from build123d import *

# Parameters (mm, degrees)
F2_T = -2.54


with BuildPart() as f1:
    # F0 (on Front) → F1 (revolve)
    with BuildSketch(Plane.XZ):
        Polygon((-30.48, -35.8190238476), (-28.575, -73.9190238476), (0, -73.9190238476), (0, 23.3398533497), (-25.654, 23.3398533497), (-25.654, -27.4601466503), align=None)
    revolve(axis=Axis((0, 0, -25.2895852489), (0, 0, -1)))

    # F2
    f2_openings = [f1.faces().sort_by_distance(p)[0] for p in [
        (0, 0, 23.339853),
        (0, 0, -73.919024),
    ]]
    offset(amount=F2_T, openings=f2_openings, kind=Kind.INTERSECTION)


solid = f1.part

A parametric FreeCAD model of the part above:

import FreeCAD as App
import Part
import Sketcher
from FreeCAD import Vector
Q = App.Units.Quantity


def faces_at(feature, points):
    """Names of the faces that lie closest to the given points."""
    faces = feature.Shape.Faces
    near = lambda p: min(range(len(faces)), key=lambda i: faces[i].distToShape(Part.Vertex(*p))[0])
    return sorted({f"Face{near(p) + 1}" for p in points})


def add_polygon(sketch, points):
    """Adds a closed chain of lines whose ends are joined by coincident constraints."""
    first, n = sketch.GeometryCount, len(points)
    for a, b in zip(points, points[1:] + points[:1]):
        sketch.addGeometry(Part.LineSegment(App.Vector(*a, 0), App.Vector(*b, 0)), False)
    for i in range(n):
        sketch.addConstraint(Sketcher.Constraint("Coincident", first + i, 2, first + (i + 1) % n, 1))

doc = App.newDocument("Part")
body = doc.addObject("PartDesign::Body", "Body")

sketch1 = body.newObject("Sketcher::SketchObject", "Sketch")
sketch1.AttachmentSupport = (doc.getObject("XZ_Plane"), [""])
sketch1.MapMode = "FlatFace"
add_polygon(sketch1, [(-30, -36), (-29, -74), (0, -74), (0, 23), (-26, 23), (-26, -27)])
sketch1.addConstraint(Sketcher.Constraint("Horizontal", 1))
sketch1.addConstraint(Sketcher.Constraint("Vertical", 2))
sketch1.addConstraint(Sketcher.Constraint("Horizontal", 3))
sketch1.addConstraint(Sketcher.Constraint("Vertical", 4))
sketch1.addConstraint(Sketcher.Constraint("PointOnObject", 1, 2, -2))
sketch1.addConstraint(Sketcher.Constraint("DistanceY", 4, 2, 4, 1, Q("2 in")))
sketch1.addConstraint(Sketcher.Constraint("Angle", 5, Q("-120 deg")))
sketch1.addConstraint(Sketcher.Constraint("DistanceX", 3, 2, 3, 1, Q("1.01 in")))
sketch1.addConstraint(Sketcher.Constraint("DistanceX", 5, 2, -1, 1, Q("1.2 in")))
sketch1.addConstraint(Sketcher.Constraint("DistanceY", 0, 2, 5, 2, Q("1.5 in")))
sketch1.addConstraint(Sketcher.Constraint("DistanceX", 1, 1, 1, 2, Q("1.125 in")))
sketch1.addConstraint(Sketcher.Constraint("DistanceY", 0, 2, -1, 1, Q("73.919024 mm")))
revolution = body.newObject("PartDesign::Revolution", "Revolution")
revolution.Profile = sketch1
revolution.ReferenceAxis = (sketch1, ["V_Axis"])
revolution.Angle = 360
doc.recompute()

thickness = body.newObject("PartDesign::Thickness", "Thickness")
thickness.Base = (revolution, faces_at(revolution, [(0, 0, 23.34), (0, 0, -73.919)]))
thickness.Value = Q("0.1 in")
thickness.Reversed = True
thickness.Join = "Intersection"

doc.recompute()
